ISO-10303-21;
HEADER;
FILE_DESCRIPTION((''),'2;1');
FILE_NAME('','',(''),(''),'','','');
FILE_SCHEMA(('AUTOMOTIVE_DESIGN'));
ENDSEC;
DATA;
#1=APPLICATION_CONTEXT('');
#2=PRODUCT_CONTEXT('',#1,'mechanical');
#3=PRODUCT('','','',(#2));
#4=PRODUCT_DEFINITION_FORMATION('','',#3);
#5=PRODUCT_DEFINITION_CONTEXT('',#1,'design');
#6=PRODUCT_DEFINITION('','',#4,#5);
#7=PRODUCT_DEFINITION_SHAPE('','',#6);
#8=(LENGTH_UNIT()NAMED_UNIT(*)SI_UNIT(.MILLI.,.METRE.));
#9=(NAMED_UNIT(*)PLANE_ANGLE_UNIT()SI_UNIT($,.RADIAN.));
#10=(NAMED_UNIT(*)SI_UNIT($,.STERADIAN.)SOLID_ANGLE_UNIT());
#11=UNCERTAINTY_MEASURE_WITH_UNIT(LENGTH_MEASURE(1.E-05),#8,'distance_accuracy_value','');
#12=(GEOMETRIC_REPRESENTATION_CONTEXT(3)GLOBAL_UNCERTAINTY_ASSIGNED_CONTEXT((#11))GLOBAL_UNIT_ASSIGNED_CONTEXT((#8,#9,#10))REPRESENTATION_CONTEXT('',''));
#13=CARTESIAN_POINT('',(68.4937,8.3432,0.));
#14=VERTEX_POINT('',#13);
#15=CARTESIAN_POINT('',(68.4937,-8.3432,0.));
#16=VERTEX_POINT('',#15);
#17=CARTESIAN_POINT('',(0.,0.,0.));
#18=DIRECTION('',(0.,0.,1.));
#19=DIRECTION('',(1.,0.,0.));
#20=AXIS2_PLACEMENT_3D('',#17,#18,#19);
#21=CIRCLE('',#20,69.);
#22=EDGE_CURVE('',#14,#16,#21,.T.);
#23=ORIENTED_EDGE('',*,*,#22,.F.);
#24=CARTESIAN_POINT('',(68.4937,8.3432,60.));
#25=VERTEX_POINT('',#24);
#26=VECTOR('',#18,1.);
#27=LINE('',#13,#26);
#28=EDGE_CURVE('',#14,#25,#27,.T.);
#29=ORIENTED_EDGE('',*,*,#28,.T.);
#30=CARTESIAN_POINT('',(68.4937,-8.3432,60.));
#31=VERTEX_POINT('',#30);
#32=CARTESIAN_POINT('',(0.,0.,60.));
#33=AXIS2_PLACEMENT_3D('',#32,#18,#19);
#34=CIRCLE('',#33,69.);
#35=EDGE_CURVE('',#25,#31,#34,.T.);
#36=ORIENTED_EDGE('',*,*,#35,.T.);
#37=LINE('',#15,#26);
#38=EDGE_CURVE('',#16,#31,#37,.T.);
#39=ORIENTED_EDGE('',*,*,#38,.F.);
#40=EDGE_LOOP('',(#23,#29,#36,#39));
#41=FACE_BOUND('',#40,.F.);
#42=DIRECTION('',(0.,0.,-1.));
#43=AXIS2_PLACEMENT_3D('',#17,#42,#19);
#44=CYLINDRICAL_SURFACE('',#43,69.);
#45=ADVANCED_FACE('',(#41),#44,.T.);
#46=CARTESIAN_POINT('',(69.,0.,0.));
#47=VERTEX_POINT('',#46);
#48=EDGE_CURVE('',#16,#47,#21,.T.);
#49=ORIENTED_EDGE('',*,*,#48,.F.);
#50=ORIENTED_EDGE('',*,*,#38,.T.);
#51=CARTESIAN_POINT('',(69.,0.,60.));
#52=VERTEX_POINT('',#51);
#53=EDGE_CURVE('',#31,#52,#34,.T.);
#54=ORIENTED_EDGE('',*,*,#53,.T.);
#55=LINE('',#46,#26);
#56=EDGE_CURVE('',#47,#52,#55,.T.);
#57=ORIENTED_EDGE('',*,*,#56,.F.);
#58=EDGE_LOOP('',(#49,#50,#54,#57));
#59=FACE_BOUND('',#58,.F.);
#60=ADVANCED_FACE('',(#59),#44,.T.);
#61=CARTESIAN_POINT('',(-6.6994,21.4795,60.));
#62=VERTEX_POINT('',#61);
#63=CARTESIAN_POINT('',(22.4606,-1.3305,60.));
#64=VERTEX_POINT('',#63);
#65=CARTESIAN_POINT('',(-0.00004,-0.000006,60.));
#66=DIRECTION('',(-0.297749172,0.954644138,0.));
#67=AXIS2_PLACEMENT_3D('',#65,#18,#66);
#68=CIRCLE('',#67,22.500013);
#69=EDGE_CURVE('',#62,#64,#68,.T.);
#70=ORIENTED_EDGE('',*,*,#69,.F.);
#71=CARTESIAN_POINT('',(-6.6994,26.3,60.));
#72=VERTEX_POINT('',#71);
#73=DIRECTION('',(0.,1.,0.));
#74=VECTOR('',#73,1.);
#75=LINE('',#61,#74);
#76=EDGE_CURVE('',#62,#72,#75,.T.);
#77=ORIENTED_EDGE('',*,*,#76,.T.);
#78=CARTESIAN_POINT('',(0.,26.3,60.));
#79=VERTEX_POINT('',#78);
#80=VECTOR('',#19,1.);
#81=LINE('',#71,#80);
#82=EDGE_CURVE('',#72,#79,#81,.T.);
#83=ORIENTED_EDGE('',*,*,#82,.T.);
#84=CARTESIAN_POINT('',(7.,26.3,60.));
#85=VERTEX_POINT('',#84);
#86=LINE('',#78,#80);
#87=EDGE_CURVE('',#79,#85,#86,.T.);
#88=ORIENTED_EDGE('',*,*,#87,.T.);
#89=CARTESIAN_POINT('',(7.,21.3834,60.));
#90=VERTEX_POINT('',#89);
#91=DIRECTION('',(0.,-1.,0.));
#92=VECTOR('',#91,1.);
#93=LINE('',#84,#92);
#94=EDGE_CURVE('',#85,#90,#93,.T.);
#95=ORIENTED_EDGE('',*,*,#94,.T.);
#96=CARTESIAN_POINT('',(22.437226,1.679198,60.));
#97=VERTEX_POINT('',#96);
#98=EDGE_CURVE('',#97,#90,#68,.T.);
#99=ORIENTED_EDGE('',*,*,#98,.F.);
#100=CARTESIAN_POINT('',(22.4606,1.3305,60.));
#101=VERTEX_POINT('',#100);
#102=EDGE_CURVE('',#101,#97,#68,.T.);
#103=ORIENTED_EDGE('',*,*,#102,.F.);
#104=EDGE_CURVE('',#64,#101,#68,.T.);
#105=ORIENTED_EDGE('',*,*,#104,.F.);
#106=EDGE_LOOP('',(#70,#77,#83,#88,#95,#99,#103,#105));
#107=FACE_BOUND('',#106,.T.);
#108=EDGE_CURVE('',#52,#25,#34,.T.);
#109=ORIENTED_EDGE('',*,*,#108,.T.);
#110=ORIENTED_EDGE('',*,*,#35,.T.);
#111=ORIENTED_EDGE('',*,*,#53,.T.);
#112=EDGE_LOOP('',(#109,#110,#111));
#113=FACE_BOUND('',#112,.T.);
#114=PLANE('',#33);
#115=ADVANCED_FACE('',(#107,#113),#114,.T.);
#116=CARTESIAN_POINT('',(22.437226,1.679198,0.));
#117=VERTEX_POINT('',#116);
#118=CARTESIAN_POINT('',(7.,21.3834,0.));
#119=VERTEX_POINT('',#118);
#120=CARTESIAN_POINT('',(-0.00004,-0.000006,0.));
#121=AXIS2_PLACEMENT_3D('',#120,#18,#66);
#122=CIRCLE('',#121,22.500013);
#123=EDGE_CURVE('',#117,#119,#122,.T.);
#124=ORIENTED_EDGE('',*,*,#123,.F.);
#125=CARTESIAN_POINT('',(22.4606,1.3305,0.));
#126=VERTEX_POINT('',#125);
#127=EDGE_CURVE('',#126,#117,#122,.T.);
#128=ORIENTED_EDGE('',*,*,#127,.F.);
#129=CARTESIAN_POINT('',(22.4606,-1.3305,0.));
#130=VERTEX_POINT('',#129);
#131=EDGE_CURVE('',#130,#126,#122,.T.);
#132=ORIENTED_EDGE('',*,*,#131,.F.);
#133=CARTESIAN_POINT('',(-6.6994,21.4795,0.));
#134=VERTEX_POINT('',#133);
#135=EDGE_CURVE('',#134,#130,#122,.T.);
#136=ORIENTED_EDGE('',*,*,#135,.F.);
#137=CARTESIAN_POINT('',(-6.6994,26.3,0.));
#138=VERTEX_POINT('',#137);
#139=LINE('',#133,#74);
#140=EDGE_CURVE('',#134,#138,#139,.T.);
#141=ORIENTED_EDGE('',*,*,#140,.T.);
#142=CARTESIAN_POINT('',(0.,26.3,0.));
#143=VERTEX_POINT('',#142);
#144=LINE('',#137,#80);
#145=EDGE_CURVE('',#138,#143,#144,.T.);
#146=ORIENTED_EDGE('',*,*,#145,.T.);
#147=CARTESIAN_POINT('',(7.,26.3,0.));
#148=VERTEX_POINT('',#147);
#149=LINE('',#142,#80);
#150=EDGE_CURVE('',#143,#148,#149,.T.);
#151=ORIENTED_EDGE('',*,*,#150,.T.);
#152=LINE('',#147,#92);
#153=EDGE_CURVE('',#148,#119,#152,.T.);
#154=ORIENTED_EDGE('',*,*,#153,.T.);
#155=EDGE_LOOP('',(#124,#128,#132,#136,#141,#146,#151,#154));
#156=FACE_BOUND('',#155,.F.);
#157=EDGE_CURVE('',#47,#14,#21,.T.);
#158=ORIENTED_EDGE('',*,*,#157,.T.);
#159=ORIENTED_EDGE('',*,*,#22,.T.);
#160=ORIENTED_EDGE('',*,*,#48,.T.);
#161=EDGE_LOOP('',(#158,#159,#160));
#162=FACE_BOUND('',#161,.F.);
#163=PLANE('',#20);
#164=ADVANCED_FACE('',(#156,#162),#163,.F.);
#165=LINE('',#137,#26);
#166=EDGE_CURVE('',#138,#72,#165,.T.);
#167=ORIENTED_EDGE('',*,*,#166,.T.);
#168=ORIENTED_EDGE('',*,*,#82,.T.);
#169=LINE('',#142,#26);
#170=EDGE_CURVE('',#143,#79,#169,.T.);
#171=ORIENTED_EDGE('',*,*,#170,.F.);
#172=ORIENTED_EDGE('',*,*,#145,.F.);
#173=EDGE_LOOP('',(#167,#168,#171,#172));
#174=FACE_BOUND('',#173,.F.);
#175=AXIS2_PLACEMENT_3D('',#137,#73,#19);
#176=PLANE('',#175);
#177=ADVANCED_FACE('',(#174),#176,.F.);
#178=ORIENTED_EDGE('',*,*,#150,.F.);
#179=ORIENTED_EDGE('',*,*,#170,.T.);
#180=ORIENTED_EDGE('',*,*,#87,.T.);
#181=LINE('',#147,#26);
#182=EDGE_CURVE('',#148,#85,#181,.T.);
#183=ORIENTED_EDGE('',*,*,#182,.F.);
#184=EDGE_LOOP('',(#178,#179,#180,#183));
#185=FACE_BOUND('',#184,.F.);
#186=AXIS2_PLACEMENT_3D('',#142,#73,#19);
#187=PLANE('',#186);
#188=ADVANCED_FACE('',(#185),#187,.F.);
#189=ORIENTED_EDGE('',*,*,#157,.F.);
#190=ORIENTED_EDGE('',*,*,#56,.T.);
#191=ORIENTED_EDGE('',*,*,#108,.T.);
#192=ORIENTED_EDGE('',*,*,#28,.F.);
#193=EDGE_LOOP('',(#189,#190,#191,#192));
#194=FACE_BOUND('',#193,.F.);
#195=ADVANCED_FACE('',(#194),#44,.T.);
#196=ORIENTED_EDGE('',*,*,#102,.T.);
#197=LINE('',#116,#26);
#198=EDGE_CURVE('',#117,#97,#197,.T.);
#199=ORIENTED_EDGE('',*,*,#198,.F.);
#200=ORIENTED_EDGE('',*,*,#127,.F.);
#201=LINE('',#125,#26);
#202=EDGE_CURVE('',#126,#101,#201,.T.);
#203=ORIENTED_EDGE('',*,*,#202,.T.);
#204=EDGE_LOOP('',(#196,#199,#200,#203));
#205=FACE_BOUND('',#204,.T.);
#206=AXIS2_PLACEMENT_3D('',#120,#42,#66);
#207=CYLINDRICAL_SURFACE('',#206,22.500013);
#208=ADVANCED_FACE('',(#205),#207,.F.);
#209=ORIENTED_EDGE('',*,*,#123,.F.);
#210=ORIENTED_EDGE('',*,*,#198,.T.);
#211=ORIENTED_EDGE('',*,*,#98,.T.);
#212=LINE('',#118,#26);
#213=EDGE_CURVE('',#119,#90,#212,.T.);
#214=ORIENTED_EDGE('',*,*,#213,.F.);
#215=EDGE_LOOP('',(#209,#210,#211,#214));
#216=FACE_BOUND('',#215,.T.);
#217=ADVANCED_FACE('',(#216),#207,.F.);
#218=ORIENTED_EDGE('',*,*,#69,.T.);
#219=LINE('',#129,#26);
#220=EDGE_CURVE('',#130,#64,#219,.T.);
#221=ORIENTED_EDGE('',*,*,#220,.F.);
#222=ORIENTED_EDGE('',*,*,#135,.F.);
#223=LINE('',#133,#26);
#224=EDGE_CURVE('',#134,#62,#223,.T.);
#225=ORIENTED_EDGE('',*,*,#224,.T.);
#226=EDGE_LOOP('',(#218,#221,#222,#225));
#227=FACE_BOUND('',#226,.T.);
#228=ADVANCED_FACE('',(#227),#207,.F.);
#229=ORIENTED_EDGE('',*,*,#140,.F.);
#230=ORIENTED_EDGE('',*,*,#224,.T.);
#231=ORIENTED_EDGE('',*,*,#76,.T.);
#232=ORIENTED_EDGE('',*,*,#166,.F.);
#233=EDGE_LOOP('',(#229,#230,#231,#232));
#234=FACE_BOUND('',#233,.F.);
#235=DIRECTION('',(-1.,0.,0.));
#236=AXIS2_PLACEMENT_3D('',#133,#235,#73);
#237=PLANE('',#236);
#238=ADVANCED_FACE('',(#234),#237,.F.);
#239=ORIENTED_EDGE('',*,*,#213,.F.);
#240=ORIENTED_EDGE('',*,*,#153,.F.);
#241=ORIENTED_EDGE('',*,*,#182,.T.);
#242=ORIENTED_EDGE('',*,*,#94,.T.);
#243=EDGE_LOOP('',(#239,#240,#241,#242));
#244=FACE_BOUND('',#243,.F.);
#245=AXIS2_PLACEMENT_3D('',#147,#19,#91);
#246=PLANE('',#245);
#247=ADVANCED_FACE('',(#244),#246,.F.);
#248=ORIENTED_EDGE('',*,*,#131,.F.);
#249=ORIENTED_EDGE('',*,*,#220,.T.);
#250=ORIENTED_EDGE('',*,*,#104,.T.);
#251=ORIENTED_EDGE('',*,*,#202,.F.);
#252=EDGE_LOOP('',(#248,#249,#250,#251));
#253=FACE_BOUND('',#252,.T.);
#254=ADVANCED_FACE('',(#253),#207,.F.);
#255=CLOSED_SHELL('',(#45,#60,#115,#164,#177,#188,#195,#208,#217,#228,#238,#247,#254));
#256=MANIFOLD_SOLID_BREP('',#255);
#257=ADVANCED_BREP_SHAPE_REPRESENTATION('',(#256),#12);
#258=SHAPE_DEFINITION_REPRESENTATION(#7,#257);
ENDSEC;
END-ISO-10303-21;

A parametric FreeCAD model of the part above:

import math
import FreeCAD as App
import Part
import Sketcher

V = App.Vector

doc = App.newDocument("Part")
body = doc.addObject("PartDesign::Body", "Body")

sketch1 = body.newObject("Sketcher::SketchObject", "Sketch")
sketch1.AttachmentSupport = (doc.getObject("XY_Plane"), [""])
sketch1.MapMode = "FlatFace"
sketch1.addGeometry([
    Part.Circle(V(0, 0, 0), V(0, 0, 1), 69),
    Part.ArcOfCircle(Part.Circle(V(0, 0, 0), V(0, 0, 1), 22.5), math.radians(107), math.radians(432)),
    Part.LineSegment(V(-6.7, 21.5, 0), V(-6.7, 26.3, 0)),
    Part.LineSegment(V(-6.7, 26.3, 0), V(7, 26.3, 0)),
    Part.LineSegment(V(7, 26.3, 0), V(7, 21.4, 0)),
], False)
sketch1.addConstraint([
    Sketcher.Constraint("Coincident", 1, 1, 2, 1),
    Sketcher.Constraint("Coincident", 2, 2, 3, 1),
    Sketcher.Constraint("Coincident", 3, 2, 4, 1),
    Sketcher.Constraint("Coincident", 4, 2, 1, 2),
    Sketcher.Constraint("Vertical", 2),
    Sketcher.Constraint("Horizontal", 3),
    Sketcher.Constraint("Vertical", 4),
    Sketcher.Constraint("Coincident", 0, 3, -1, 1),
    Sketcher.Constraint("Coincident", 1, 3, -1, 1),
    Sketcher.Constraint("Diameter", 0, 138.0),
    Sketcher.Constraint("Radius", 1, 22.5),
    Sketcher.Constraint("DistanceX", -1, 1, 3, 2, 7.0),
    Sketcher.Constraint("DistanceY", -1, 1, 2, 2, 26.3),
    Sketcher.Constraint("DistanceX", 3, 1, 3, 2, 13.6994),
])
pad1 = body.newObject("PartDesign::Pad", "Pad")
pad1.Profile = sketch1
pad1.Length = 60

doc.recompute()
